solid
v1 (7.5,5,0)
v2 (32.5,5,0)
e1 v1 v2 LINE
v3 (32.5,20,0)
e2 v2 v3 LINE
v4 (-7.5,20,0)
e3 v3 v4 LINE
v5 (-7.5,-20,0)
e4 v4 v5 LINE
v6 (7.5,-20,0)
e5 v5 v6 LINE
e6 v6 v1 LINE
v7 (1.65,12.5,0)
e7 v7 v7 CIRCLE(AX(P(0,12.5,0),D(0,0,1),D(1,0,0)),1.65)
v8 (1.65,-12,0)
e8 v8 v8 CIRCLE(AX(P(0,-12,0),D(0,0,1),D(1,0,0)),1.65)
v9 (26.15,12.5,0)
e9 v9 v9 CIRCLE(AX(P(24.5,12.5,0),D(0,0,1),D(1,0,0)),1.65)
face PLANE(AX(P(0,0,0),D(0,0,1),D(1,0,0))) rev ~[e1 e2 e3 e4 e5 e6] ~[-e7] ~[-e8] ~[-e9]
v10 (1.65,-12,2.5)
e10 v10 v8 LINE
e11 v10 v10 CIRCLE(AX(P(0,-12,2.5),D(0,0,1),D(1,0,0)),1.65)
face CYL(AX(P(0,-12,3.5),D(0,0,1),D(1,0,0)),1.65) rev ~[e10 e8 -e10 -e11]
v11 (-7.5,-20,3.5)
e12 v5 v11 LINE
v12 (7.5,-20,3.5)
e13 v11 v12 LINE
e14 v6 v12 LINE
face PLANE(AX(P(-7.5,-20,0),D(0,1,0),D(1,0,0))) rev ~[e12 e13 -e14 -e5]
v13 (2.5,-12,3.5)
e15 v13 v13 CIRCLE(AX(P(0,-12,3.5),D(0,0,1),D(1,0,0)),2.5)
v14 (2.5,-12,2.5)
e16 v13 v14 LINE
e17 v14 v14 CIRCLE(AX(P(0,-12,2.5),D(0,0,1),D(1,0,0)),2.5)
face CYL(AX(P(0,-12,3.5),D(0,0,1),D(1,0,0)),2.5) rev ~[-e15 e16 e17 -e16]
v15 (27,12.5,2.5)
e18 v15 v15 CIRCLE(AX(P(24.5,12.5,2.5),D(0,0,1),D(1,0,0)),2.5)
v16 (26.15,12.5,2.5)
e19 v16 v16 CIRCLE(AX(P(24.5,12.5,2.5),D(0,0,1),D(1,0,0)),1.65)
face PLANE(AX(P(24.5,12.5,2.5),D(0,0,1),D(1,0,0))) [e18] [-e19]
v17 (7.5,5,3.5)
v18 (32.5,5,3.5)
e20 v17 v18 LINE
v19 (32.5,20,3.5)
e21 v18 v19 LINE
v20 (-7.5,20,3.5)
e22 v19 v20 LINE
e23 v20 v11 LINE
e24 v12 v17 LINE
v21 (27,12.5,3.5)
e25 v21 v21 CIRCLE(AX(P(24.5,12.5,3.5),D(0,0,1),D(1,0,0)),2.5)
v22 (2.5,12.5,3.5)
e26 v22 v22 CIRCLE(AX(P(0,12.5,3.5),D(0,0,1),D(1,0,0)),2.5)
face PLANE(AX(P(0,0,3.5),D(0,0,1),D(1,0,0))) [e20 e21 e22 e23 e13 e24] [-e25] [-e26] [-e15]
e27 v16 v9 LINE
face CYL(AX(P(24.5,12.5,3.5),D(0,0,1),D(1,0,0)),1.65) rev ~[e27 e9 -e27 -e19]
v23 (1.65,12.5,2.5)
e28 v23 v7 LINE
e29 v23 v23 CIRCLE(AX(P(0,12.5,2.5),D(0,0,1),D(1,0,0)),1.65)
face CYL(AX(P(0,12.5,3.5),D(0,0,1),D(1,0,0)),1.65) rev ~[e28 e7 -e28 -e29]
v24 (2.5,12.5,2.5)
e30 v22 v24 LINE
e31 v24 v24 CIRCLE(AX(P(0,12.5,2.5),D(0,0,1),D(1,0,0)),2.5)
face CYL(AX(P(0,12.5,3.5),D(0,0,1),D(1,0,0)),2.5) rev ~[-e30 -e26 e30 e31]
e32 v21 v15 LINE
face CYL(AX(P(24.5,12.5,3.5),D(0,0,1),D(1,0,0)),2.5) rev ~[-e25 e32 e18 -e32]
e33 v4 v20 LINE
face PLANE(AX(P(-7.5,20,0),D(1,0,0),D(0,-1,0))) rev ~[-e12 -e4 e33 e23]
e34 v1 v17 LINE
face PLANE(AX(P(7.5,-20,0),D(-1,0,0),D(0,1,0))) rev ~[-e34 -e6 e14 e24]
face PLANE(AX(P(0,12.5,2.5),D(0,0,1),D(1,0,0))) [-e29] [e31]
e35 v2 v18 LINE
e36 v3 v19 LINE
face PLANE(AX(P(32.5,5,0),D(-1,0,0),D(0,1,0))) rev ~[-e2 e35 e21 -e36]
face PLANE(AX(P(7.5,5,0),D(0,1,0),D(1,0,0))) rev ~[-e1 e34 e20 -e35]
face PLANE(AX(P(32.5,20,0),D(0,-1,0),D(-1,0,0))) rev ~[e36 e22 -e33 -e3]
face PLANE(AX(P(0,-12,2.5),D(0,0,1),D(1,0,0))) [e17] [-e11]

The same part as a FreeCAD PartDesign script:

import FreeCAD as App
import Part
import Sketcher
Q = App.Units.Quantity


def add_polygon(sketch, points):
    """Adds a closed chain of lines whose ends are joined by coincident constraints."""
    first, n = sketch.GeometryCount, len(points)
    for a, b in zip(points, points[1:] + points[:1]):
        sketch.addGeometry(Part.LineSegment(App.Vector(*a, 0), App.Vector(*b, 0)), False)
    for i in range(n):
        sketch.addConstraint(Sketcher.Constraint("Coincident", first + i, 2, first + (i + 1) % n, 1))

doc = App.newDocument("Part")
body = doc.addObject("PartDesign::Body", "Body")

# Sketch on XY plane
sketch1 = body.newObject("Sketcher::SketchObject", "Sketch")
sketch1.AttachmentSupport = (doc.getObject("XY_Plane"), [""])
sketch1.MapMode = "FlatFace"
add_polygon(sketch1, [(-8, 20), (-8, -20), (8, -20), (8, 5), (32, 5), (32, 20)])  # lines 0-5
sketch1.addConstraint([
    Sketcher.Constraint("Vertical", 0),
    Sketcher.Constraint("Horizontal", 1),
    Sketcher.Constraint("Vertical", 2),
    Sketcher.Constraint("Horizontal", 3),
    Sketcher.Constraint("Vertical", 4),
    Sketcher.Constraint("Horizontal", 5),
    Sketcher.Constraint("Symmetric", 1, 2, 5, 2, -1, 1),
    Sketcher.Constraint("Equal", 5, 0),
    Sketcher.Constraint("Equal", 3, 2),
    Sketcher.Constraint("DistanceX", 1, 1, 1, 2, Q("15 mm")),
    Sketcher.Constraint("DistanceX", 3, 1, 3, 2, Q("25 mm")),
])
pad1 = body.newObject("PartDesign::Pad", "Pad")
pad1.Profile = sketch1
pad1.Length = 3.5

# Sketch on XY plane
sketch2 = body.newObject("Sketcher::SketchObject", "Sketch001")
sketch2.AttachmentSupport = (doc.getObject("XY_Plane"), [""])
sketch2.MapMode = "FlatFace"
sketch2.AttachmentOffset = App.Placement(App.Vector(0, 0, 3.5), App.Rotation())
sketch2.addGeometry([
    Part.Circle(App.Vector(0, 12.5, 0), App.Vector(0, 0, 1), 1.6),
    Part.Circle(App.Vector(0, -12, 0), App.Vector(0, 0, 1), 1.6),
    Part.Circle(App.Vector(24.5, 12.5, 0), App.Vector(0, 0, 1), 1.6),
], False)
sketch2.addConstraint([
    Sketcher.Constraint("Equal", 0, 1),
    Sketcher.Constraint("Equal", 1, 2),
    Sketcher.Constraint("PointOnObject", 0, 3, -2),
    Sketcher.Constraint("PointOnObject", 1, 3, -2),
    Sketcher.Constraint("Horizontal", 0, 3, 2, 3),
    Sketcher.Constraint("Diameter", 0, Q("3.3 mm")),
    Sketcher.Constraint("DistanceY", 1, 3, -1, 1, Q("12 mm")),
    Sketcher.Constraint("DistanceY", -1, 1, 0, 3, Q("12.5 mm")),
    Sketcher.Constraint("DistanceX", -1, 1, 2, 3, Q("24.5 mm")),
])
pocket1 = body.newObject("PartDesign::Pocket", "Pocket")
pocket1.Profile = sketch2
pocket1.Type = "ThroughAll"

# Sketch on XY plane
sketch3 = body.newObject("Sketcher::SketchObject", "Sketch002")
sketch3.AttachmentSupport = (doc.getObject("XY_Plane"), [""])
sketch3.MapMode = "FlatFace"
sketch3.AttachmentOffset = App.Placement(App.Vector(0, 0, 3.5), App.Rotation())
sketch3.addGeometry([
    Part.Circle(App.Vector(0, -12, 0), App.Vector(0, 0, 1), 2.5),  # 0
    Part.Circle(App.Vector(0, -12, 0), App.Vector(0, 0, 1), 1.6),  # 1
    Part.Circle(App.Vector(0, 12.5, 0), App.Vector(0, 0, 1), 2.5),  # 2
    Part.Circle(App.Vector(0, 12.5, 0), App.Vector(0, 0, 1), 1.6),  # 3
    Part.Circle(App.Vector(24.5, 12.5, 0), App.Vector(0, 0, 1), 2.5),  # 4
    Part.Circle(App.Vector(24.5, 12.5, 0), App.Vector(0, 0, 1), 1.6),  # 5
], False)
sketch3.addConstraint([
    Sketcher.Constraint("Coincident", 1, 3, 0, 3),
    Sketcher.Constraint("Coincident", 3, 3, 2, 3),
    Sketcher.Constraint("Coincident", 5, 3, 4, 3),
    Sketcher.Constraint("Equal", 0, 2),
    Sketcher.Constraint("Equal", 1, 3),
    Sketcher.Constraint("Equal", 2, 4),
    Sketcher.Constraint("Equal", 3, 5),
    Sketcher.Constraint("PointOnObject", 0, 3, -2),
    Sketcher.Constraint("PointOnObject", 2, 3, -2),
    Sketcher.Constraint("Horizontal", 3, 3, 4, 3),
    Sketcher.Constraint("Diameter", 0, Q("5 mm")),
    Sketcher.Constraint("Diameter", 1, Q("3.3 mm")),
    Sketcher.Constraint("DistanceY", 0, 3, -1, 1, Q("12 mm")),
    Sketcher.Constraint("DistanceY", -1, 1, 2, 3, Q("12.5 mm")),
    Sketcher.Constraint("DistanceX", -1, 1, 4, 3, Q("24.5 mm")),
])
pocket2 = body.newObject("PartDesign::Pocket", "Pocket001")
pocket2.Profile = sketch3
pocket2.Length = 1

doc.recompute()
